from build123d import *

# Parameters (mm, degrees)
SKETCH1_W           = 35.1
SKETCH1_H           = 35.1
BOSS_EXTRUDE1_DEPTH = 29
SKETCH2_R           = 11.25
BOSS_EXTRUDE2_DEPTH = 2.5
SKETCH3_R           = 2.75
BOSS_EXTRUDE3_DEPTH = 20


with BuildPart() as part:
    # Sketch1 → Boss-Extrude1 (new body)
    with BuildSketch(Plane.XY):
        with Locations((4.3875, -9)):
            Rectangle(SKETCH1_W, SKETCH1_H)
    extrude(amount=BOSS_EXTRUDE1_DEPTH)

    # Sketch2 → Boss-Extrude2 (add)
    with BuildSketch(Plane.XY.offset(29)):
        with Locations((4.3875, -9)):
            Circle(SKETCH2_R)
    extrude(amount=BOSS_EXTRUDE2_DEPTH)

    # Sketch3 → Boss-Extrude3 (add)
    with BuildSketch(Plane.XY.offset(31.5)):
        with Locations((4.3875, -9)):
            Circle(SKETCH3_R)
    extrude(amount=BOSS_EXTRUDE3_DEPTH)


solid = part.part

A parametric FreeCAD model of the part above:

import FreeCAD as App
import Part
import Sketcher

V = App.Vector
Q = App.Units.Quantity

doc = App.newDocument("Part")
params = doc.addObject("Spreadsheet::Sheet", "Params")
for row, (alias, value) in enumerate([
    ("sketch1_width", "35.1 mm"),
    ("pad1_length", "29 mm"),
    ("sketch2_diameter", "22.5 mm"),
    ("pad2_length", "2.5 mm"),
    ("sketch3_diameter", "5.5 mm"),
    ("pad3_length", "20 mm"),
], start=1):
    params.set(f"A{row}", alias)
    params.set(f"B{row}", "=" + value)
    params.setAlias(f"B{row}", alias)

body = doc.addObject("PartDesign::Body", "Body")

# Sketch on XY plane
sketch1 = doc.addObject("Sketcher::SketchObject", "Sketch")
body.addObject(sketch1)
sketch1.AttachmentSupport = (doc.XY_Plane, [""])
sketch1.MapMode = "FlatFace"
sketch1.addGeometry([
    Part.LineSegment(V(-13, 9, 0), V(-13, -27, 0)),
    Part.LineSegment(V(-13, -27, 0), V(22, -27, 0)),
    Part.LineSegment(V(22, -27, 0), V(22, 9, 0)),
    Part.LineSegment(V(22, 9, 0), V(-13, 9, 0)),
], False)
sketch1.addConstraint([
    Sketcher.Constraint("Coincident", 0, 2, 1, 1),
    Sketcher.Constraint("Coincident", 1, 2, 2, 1),
    Sketcher.Constraint("Coincident", 2, 2, 3, 1),
    Sketcher.Constraint("Coincident", 3, 2, 0, 1),
    Sketcher.Constraint("Vertical", 0),
    Sketcher.Constraint("Horizontal", 1),
    Sketcher.Constraint("Vertical", 2),
    Sketcher.Constraint("Horizontal", 3),
    Sketcher.Constraint("Equal", 3, 0),
    Sketcher.Constraint("DistanceX", 1, 1, 1, 2, Q("35.1 mm")),
    Sketcher.Constraint("DistanceY", 0, 2, -1, 1, Q("26.55 mm")),
    Sketcher.Constraint("DistanceX", 0, 2, -1, 1, Q("13.1625 mm")),
])
sketch1.setExpression("Constraints[9]", "Params.sketch1_width")
pad1 = doc.addObject("PartDesign::Pad", "Pad")
body.addObject(pad1)
pad1.Profile = sketch1
pad1.setExpression("Length", "Params.pad1_length")

# Sketch on XY plane
sketch2 = doc.addObject("Sketcher::SketchObject", "Sketch001")
body.addObject(sketch2)
sketch2.AttachmentSupport = (doc.XY_Plane, [""])
sketch2.MapMode = "FlatFace"
sketch2.AttachmentOffset = App.Placement(V(0, 0, 29), App.Rotation())
sketch2.addGeometry(Part.Circle(V(4, -9, 0), V(0, 0, 1), 11), False)
sketch2.addConstraint([
    Sketcher.Constraint("Diameter", 0, Q("22.5 mm")),
    Sketcher.Constraint("DistanceY", 0, 3, -1, 1, Q("9 mm")),
    Sketcher.Constraint("DistanceX", -1, 1, 0, 3, Q("4.3875 mm")),
])
sketch2.setExpression("Constraints[0]", "Params.sketch2_diameter")
pad2 = doc.addObject("PartDesign::Pad", "Pad001")
body.addObject(pad2)
pad2.Profile = sketch2
pad2.setExpression("Length", "Params.pad2_length")

# Sketch on XY plane
sketch3 = doc.addObject("Sketcher::SketchObject", "Sketch002")
body.addObject(sketch3)
sketch3.AttachmentSupport = (doc.XY_Plane, [""])
sketch3.MapMode = "FlatFace"
sketch3.AttachmentOffset = App.Placement(V(0, 0, 31.5), App.Rotation())
sketch3.addGeometry(Part.Circle(V(4.4, -9, 0), V(0, 0, 1), 2.8), False)
sketch3.addConstraint([
    Sketcher.Constraint("Diameter", 0, Q("5.5 mm")),
    Sketcher.Constraint("DistanceY", 0, 3, -1, 1, Q("9 mm")),
    Sketcher.Constraint("DistanceX", -1, 1, 0, 3, Q("4.3875 mm")),
])
sketch3.setExpression("Constraints[0]", "Params.sketch3_diameter")
pad3 = doc.addObject("PartDesign::Pad", "Pad002")
body.addObject(pad3)
pad3.Profile = sketch3
pad3.setExpression("Length", "Params.pad3_length")

doc.recompute()
